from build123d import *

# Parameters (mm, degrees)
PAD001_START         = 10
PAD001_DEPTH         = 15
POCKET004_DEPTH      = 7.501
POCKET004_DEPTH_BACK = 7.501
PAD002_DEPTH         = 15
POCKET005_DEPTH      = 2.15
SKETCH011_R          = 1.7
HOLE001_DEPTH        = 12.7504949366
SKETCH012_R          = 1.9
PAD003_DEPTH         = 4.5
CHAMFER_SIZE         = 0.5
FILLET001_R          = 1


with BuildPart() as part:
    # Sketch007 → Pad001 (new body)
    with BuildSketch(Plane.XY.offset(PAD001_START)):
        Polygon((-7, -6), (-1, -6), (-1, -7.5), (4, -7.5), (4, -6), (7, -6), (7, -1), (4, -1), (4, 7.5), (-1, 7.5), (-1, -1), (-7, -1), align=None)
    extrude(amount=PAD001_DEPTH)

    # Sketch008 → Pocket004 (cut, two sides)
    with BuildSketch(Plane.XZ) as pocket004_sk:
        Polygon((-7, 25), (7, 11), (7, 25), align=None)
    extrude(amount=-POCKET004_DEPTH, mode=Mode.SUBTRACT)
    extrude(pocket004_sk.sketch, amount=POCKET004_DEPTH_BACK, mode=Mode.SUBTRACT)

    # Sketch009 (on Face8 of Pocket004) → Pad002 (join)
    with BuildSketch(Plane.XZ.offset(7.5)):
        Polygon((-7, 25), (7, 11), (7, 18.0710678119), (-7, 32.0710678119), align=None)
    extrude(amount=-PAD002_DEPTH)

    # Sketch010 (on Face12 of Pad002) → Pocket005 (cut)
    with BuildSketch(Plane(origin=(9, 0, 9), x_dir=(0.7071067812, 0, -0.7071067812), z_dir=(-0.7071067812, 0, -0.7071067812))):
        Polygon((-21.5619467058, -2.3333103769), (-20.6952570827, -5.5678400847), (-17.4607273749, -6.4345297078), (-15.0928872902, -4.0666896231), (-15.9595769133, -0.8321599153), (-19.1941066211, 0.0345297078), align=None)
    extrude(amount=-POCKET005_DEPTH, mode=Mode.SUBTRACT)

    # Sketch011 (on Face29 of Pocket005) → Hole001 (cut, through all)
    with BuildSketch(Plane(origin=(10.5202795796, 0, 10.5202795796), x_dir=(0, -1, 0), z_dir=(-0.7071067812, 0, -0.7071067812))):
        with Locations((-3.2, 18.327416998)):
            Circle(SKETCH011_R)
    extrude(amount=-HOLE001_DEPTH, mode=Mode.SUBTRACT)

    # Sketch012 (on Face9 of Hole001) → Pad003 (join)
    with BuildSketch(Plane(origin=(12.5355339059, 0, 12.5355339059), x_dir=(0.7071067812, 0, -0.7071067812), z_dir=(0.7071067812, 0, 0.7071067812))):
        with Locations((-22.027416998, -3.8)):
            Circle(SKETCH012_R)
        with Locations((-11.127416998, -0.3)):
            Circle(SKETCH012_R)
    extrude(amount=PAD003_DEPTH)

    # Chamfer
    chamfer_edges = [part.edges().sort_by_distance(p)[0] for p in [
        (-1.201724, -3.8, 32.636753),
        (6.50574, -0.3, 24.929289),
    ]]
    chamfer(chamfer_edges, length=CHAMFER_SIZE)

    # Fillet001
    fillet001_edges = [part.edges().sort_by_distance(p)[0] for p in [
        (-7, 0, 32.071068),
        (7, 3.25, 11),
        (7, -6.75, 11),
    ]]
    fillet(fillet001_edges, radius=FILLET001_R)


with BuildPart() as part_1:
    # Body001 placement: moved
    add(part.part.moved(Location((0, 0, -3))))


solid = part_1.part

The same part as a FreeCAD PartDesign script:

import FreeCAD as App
import Part
import Sketcher
Q = App.Units.Quantity


def edges_at(feature, points):
    """Names of the edges that pass closest to the given points."""
    edges = feature.Shape.Edges
    near = lambda p: min(range(len(edges)), key=lambda i: edges[i].distToShape(Part.Vertex(*p))[0])
    return sorted({f"Edge{near(p) + 1}" for p in points})

doc = App.newDocument("Part")
body = doc.addObject("PartDesign::Body", "Body")

sketch1 = body.newObject("Sketcher::SketchObject", "Sketch")
sketch1.AttachmentSupport = (doc.getObject("XY_Plane"), [""])
sketch1.MapMode = "FlatFace"
sketch1.AttachmentOffset = App.Placement(App.Vector(0, 0, 10), App.Rotation())
sketch1.addGeometry([
    Part.LineSegment(App.Vector(-7, -6, 0), App.Vector(-1, -6, 0)),
    Part.LineSegment(App.Vector(-1, -6, 0), App.Vector(-1, -7.5, 0)),
    Part.LineSegment(App.Vector(-1, -7.5, 0), App.Vector(4, -7.5, 0)),
    Part.LineSegment(App.Vector(4, -7.5, 0), App.Vector(4, -6, 0)),
    Part.LineSegment(App.Vector(4, -6, 0), App.Vector(7, -6, 0)),
    Part.LineSegment(App.Vector(7, -6, 0), App.Vector(7, -1, 0)),
    Part.LineSegment(App.Vector(7, -1, 0), App.Vector(4, -1, 0)),
    Part.LineSegment(App.Vector(4, -1, 0), App.Vector(4, 7.5, 0)),
    Part.LineSegment(App.Vector(4, 7.5, 0), App.Vector(-1, 7.5, 0)),
    Part.LineSegment(App.Vector(-1, 7.5, 0), App.Vector(-1, -1, 0)),
    Part.LineSegment(App.Vector(-1, -1, 0), App.Vector(-7, -1, 0)),
    Part.LineSegment(App.Vector(-7, -1, 0), App.Vector(-7, -6, 0)),
], False)
sketch1.addConstraint([
    Sketcher.Constraint("Coincident", 0, 2, 1, 1),
    Sketcher.Constraint("Coincident", 1, 2, 2, 1),
    Sketcher.Constraint("Coincident", 2, 2, 3, 1),
    Sketcher.Constraint("Coincident", 3, 2, 4, 1),
    Sketcher.Constraint("Coincident", 4, 2, 5, 1),
    Sketcher.Constraint("Coincident", 5, 2, 6, 1),
    Sketcher.Constraint("Coincident", 6, 2, 7, 1),
    Sketcher.Constraint("Coincident", 7, 2, 8, 1),
    Sketcher.Constraint("Coincident", 8, 2, 9, 1),
    Sketcher.Constraint("Coincident", 9, 2, 10, 1),
    Sketcher.Constraint("Coincident", 10, 2, 11, 1),
    Sketcher.Constraint("Coincident", 11, 2, 0, 1),
    Sketcher.Constraint("Horizontal", 0),
    Sketcher.Constraint("Vertical", 1),
    Sketcher.Constraint("Horizontal", 2),
    Sketcher.Constraint("Vertical", 3),
    Sketcher.Constraint("Horizontal", 4),
    Sketcher.Constraint("Vertical", 5),
    Sketcher.Constraint("Horizontal", 6),
    Sketcher.Constraint("Vertical", 7),
    Sketcher.Constraint("Horizontal", 8),
    Sketcher.Constraint("Vertical", 9),
    Sketcher.Constraint("Horizontal", 10),
    Sketcher.Constraint("Vertical", 11),
    Sketcher.Constraint("Symmetric", 5, 2, 10, 2, -2),
    Sketcher.Constraint("Symmetric", 2, 2, 7, 2, -1),
    Sketcher.Constraint("Horizontal", 0, 2, 3, 2),
    Sketcher.Constraint("Vertical", 1, 2, 8, 2),
    Sketcher.Constraint("Equal", 8, 5),
    Sketcher.Constraint("DistanceX", 0, 1, 0, 2, Q("6 mm")),
    Sketcher.Constraint("DistanceX", 2, 1, 2, 2, Q("5 mm")),
    Sketcher.Constraint("DistanceX", 4, 1, 4, 2, Q("3 mm")),
    Sketcher.Constraint("DistanceY", 1, 2, 1, 1, Q("1.5 mm")),
    Sketcher.Constraint("DistanceY", 7, 1, 7, 2, Q("8.5 mm")),
])
pad1 = body.newObject("PartDesign::Pad", "Pad")
pad1.Profile = sketch1
pad1.Length = 15

sketch2 = body.newObject("Sketcher::SketchObject", "Sketch001")
sketch2.AttachmentSupport = (doc.getObject("XZ_Plane"), [""])
sketch2.MapMode = "FlatFace"
sketch2.addGeometry([
    Part.LineSegment(App.Vector(-7, 25, 0), App.Vector(7, 11, 0)),
    Part.LineSegment(App.Vector(7, 11, 0), App.Vector(7, 25, 0)),
    Part.LineSegment(App.Vector(7, 25, 0), App.Vector(-7, 25, 0)),
], False)
sketch2.addConstraint([
    Sketcher.Constraint("Coincident", 0, 2, 1, 1),
    Sketcher.Constraint("Coincident", 1, 2, 2, 1),
    Sketcher.Constraint("Coincident", 2, 2, 0, 1),
    Sketcher.Constraint("Vertical", 1),
    Sketcher.Constraint("Horizontal", 2),
    Sketcher.Constraint("Equal", 2, 1),
    Sketcher.Constraint("DistanceX", 2, 2, 2, 1, Q("14 mm")),
    Sketcher.Constraint("DistanceX", -1, 1, 0, 2, Q("7 mm")),
    Sketcher.Constraint("DistanceY", -1, 1, 0, 2, Q("11 mm")),
])
pocket1 = body.newObject("PartDesign::Pocket", "Pocket")
pocket1.Profile = sketch2
pocket1.Type = "ThroughAll"
pocket1.Midplane = True

sketch3 = body.newObject("Sketcher::SketchObject", "Sketch002")
sketch3.AttachmentSupport = (doc.getObject("XZ_Plane"), [""])
sketch3.MapMode = "FlatFace"
sketch3.AttachmentOffset = App.Placement(App.Vector(0, 0, 7.5), App.Rotation())
sketch3.addGeometry([
    Part.LineSegment(App.Vector(-7, 25, 0), App.Vector(7, 11, 0)),
    Part.LineSegment(App.Vector(7, 11, 0), App.Vector(7, 18, 0)),
    Part.LineSegment(App.Vector(7, 18, 0), App.Vector(-7, 32, 0)),
    Part.LineSegment(App.Vector(-7, 32, 0), App.Vector(-7, 25, 0)),
], False)
sketch3.addConstraint([
    Sketcher.Constraint("Coincident", 0, 2, 1, 1),
    Sketcher.Constraint("Coincident", 1, 2, 2, 1),
    Sketcher.Constraint("Coincident", 2, 2, 3, 1),
    Sketcher.Constraint("Coincident", 3, 2, 0, 1),
    Sketcher.Constraint("Vertical", 1),
    Sketcher.Constraint("Vertical", 3),
    Sketcher.Constraint("Parallel", 0, 2),
    Sketcher.Constraint("Angle", 0, Q("-45 deg")),
    Sketcher.Constraint("DistanceX", -1, 1, 0, 2, Q("7 mm")),
    Sketcher.Constraint("DistanceY", -1, 1, 0, 2, Q("11 mm")),
    Sketcher.Constraint("DistanceX", 2, 2, -1, 1, Q("7 mm")),
    Sketcher.Constraint("DistanceY", 1, 1, 1, 2, Q("7.071068 mm")),
])
pad2 = body.newObject("PartDesign::Pad", "Pad001")
pad2.Profile = sketch3
pad2.Length = 15
pad2.Reversed = True

sketch4 = body.newObject("Sketcher::SketchObject", "Sketch003")
sketch4.Placement = App.Placement(App.Vector(9, 0, 9), App.Rotation(App.Vector(0.707106781, 0, -0.707106781), App.Vector(0, -0.999999999, 0), App.Vector(-0.707106781, 0, -0.707106781), "ZXY"))
sketch4.addGeometry([
    Part.LineSegment(App.Vector(-21.6, -2.3, 0), App.Vector(-20.7, -5.6, 0)),
    Part.LineSegment(App.Vector(-20.7, -5.6, 0), App.Vector(-17.5, -6.4, 0)),
    Part.LineSegment(App.Vector(-17.5, -6.4, 0), App.Vector(-15.1, -4.1, 0)),
    Part.LineSegment(App.Vector(-15.1, -4.1, 0), App.Vector(-16, -0.8, 0)),
    Part.LineSegment(App.Vector(-16, -0.8, 0), App.Vector(-19.2, 0, 0)),
    Part.LineSegment(App.Vector(-19.2, 0, 0), App.Vector(-21.6, -2.3, 0)),
], False)
sketch4.addConstraint([
    Sketcher.Constraint("Coincident", 0, 2, 1, 1),
    Sketcher.Constraint("Coincident", 1, 2, 2, 1),
    Sketcher.Constraint("Coincident", 2, 2, 3, 1),
    Sketcher.Constraint("Coincident", 3, 2, 4, 1),
    Sketcher.Constraint("Coincident", 4, 2, 5, 1),
    Sketcher.Constraint("Coincident", 5, 2, 0, 1),
    Sketcher.Constraint("Parallel", 0, 3),
    Sketcher.Constraint("Parallel", 1, 4),
    Sketcher.Constraint("Parallel", 2, 5),
    Sketcher.Constraint("Equal", 0, 1),
    Sketcher.Constraint("Equal", 1, 2),
    Sketcher.Constraint("Equal", 2, 3),
    Sketcher.Constraint("Angle", 0, Q("-75 deg")),
    Sketcher.Constraint("Angle", 1, Q("-15 deg")),
    Sketcher.Constraint("Angle", 2, Q("45 deg")),
    Sketcher.Constraint("Distance", 0, Q("3.348632 mm")),
    Sketcher.Constraint("DistanceY", 0, 2, -1, 1, Q("5.56784 mm")),
    Sketcher.Constraint("DistanceX", 0, 2, -1, 1, Q("20.695257 mm")),
])
pocket2 = body.newObject("PartDesign::Pocket", "Pocket001")
pocket2.Profile = sketch4
pocket2.Length = 2.15

sketch5 = body.newObject("Sketcher::SketchObject", "Sketch004")
sketch5.Placement = App.Placement(App.Vector(10.52028, 0, 10.52028), App.Rotation(App.Vector(0, -1, 0), App.Vector(-0.707106781, 0, 0.707106781), App.Vector(-0.707106781, 0, -0.707106781), "ZXY"))
sketch5.addGeometry(Part.Circle(App.Vector(-3.2, 18.3, 0), App.Vector(0, 0, 1), 1.7), False)
sketch5.addConstraint([
    Sketcher.Constraint("Diameter", 0, Q("3.4 mm")),
    Sketcher.Constraint("DistanceX", 0, 3, -1, 1, Q("3.2 mm")),
    Sketcher.Constraint("DistanceY", -1, 1, 0, 3, Q("18.327417 mm")),
])
pocket3 = body.newObject("PartDesign::Pocket", "Pocket002")
pocket3.Profile = sketch5
pocket3.Type = "ThroughAll"

sketch6 = body.newObject("Sketcher::SketchObject", "Sketch005")
sketch6.Placement = App.Placement(App.Vector(12.535534, 0, 12.535534), App.Rotation(App.Vector(0.707106781, 0, -0.707106781), App.Vector(0, 0.999999999, 0), App.Vector(0.707106781, 0, 0.707106781), "ZXY"))
sketch6.addGeometry([
    Part.Circle(App.Vector(-22, -3.8, 0), App.Vector(0, 0, 1), 1.9),
    Part.Circle(App.Vector(-11.1, -0.3, 0), App.Vector(0, 0, 1), 1.9),
], False)
sketch6.addConstraint([
    Sketcher.Constraint("Equal", 0, 1),
    Sketcher.Constraint("Diameter", 0, Q("3.8 mm")),
    Sketcher.Constraint("DistanceY", 0, 3, -1, 1, Q("3.8 mm")),
    Sketcher.Constraint("DistanceY", 1, 3, -1, 1, Q("0.3 mm")),
    Sketcher.Constraint("DistanceX", 0, 3, 1, 3, Q("10.9 mm")),
    Sketcher.Constraint("DistanceX", 0, 3, -1, 1, Q("22.027417 mm")),
])
pad3 = body.newObject("PartDesign::Pad", "Pad002")
pad3.Profile = sketch6
pad3.Length = 4.5
doc.recompute()

chamfer = body.newObject("PartDesign::Chamfer", "Chamfer")
chamfer.Base = (pad3, edges_at(pad3, [(-1.202, -3.8, 32.637), (6.506, -0.3, 24.929)]))
chamfer.Size = 0.5
doc.recompute()

fillet = body.newObject("PartDesign::Fillet", "Fillet")
fillet.Base = (chamfer, edges_at(chamfer, [(-7, 0, 32.071), (7, 3.25, 11), (7, -6.75, 11)]))
fillet.Radius = 1
body2 = doc.addObject("PartDesign::Body", "Body001")
doc.recompute()

body.Placement = App.Placement(App.Vector(0, 0, -3), App.Rotation(App.Vector(0, 0, 1), 0))
boolean = body2.newObject("PartDesign::Boolean", "Boolean")
boolean.Type = "Fuse"
boolean.addObjects([body])

doc.recompute()
